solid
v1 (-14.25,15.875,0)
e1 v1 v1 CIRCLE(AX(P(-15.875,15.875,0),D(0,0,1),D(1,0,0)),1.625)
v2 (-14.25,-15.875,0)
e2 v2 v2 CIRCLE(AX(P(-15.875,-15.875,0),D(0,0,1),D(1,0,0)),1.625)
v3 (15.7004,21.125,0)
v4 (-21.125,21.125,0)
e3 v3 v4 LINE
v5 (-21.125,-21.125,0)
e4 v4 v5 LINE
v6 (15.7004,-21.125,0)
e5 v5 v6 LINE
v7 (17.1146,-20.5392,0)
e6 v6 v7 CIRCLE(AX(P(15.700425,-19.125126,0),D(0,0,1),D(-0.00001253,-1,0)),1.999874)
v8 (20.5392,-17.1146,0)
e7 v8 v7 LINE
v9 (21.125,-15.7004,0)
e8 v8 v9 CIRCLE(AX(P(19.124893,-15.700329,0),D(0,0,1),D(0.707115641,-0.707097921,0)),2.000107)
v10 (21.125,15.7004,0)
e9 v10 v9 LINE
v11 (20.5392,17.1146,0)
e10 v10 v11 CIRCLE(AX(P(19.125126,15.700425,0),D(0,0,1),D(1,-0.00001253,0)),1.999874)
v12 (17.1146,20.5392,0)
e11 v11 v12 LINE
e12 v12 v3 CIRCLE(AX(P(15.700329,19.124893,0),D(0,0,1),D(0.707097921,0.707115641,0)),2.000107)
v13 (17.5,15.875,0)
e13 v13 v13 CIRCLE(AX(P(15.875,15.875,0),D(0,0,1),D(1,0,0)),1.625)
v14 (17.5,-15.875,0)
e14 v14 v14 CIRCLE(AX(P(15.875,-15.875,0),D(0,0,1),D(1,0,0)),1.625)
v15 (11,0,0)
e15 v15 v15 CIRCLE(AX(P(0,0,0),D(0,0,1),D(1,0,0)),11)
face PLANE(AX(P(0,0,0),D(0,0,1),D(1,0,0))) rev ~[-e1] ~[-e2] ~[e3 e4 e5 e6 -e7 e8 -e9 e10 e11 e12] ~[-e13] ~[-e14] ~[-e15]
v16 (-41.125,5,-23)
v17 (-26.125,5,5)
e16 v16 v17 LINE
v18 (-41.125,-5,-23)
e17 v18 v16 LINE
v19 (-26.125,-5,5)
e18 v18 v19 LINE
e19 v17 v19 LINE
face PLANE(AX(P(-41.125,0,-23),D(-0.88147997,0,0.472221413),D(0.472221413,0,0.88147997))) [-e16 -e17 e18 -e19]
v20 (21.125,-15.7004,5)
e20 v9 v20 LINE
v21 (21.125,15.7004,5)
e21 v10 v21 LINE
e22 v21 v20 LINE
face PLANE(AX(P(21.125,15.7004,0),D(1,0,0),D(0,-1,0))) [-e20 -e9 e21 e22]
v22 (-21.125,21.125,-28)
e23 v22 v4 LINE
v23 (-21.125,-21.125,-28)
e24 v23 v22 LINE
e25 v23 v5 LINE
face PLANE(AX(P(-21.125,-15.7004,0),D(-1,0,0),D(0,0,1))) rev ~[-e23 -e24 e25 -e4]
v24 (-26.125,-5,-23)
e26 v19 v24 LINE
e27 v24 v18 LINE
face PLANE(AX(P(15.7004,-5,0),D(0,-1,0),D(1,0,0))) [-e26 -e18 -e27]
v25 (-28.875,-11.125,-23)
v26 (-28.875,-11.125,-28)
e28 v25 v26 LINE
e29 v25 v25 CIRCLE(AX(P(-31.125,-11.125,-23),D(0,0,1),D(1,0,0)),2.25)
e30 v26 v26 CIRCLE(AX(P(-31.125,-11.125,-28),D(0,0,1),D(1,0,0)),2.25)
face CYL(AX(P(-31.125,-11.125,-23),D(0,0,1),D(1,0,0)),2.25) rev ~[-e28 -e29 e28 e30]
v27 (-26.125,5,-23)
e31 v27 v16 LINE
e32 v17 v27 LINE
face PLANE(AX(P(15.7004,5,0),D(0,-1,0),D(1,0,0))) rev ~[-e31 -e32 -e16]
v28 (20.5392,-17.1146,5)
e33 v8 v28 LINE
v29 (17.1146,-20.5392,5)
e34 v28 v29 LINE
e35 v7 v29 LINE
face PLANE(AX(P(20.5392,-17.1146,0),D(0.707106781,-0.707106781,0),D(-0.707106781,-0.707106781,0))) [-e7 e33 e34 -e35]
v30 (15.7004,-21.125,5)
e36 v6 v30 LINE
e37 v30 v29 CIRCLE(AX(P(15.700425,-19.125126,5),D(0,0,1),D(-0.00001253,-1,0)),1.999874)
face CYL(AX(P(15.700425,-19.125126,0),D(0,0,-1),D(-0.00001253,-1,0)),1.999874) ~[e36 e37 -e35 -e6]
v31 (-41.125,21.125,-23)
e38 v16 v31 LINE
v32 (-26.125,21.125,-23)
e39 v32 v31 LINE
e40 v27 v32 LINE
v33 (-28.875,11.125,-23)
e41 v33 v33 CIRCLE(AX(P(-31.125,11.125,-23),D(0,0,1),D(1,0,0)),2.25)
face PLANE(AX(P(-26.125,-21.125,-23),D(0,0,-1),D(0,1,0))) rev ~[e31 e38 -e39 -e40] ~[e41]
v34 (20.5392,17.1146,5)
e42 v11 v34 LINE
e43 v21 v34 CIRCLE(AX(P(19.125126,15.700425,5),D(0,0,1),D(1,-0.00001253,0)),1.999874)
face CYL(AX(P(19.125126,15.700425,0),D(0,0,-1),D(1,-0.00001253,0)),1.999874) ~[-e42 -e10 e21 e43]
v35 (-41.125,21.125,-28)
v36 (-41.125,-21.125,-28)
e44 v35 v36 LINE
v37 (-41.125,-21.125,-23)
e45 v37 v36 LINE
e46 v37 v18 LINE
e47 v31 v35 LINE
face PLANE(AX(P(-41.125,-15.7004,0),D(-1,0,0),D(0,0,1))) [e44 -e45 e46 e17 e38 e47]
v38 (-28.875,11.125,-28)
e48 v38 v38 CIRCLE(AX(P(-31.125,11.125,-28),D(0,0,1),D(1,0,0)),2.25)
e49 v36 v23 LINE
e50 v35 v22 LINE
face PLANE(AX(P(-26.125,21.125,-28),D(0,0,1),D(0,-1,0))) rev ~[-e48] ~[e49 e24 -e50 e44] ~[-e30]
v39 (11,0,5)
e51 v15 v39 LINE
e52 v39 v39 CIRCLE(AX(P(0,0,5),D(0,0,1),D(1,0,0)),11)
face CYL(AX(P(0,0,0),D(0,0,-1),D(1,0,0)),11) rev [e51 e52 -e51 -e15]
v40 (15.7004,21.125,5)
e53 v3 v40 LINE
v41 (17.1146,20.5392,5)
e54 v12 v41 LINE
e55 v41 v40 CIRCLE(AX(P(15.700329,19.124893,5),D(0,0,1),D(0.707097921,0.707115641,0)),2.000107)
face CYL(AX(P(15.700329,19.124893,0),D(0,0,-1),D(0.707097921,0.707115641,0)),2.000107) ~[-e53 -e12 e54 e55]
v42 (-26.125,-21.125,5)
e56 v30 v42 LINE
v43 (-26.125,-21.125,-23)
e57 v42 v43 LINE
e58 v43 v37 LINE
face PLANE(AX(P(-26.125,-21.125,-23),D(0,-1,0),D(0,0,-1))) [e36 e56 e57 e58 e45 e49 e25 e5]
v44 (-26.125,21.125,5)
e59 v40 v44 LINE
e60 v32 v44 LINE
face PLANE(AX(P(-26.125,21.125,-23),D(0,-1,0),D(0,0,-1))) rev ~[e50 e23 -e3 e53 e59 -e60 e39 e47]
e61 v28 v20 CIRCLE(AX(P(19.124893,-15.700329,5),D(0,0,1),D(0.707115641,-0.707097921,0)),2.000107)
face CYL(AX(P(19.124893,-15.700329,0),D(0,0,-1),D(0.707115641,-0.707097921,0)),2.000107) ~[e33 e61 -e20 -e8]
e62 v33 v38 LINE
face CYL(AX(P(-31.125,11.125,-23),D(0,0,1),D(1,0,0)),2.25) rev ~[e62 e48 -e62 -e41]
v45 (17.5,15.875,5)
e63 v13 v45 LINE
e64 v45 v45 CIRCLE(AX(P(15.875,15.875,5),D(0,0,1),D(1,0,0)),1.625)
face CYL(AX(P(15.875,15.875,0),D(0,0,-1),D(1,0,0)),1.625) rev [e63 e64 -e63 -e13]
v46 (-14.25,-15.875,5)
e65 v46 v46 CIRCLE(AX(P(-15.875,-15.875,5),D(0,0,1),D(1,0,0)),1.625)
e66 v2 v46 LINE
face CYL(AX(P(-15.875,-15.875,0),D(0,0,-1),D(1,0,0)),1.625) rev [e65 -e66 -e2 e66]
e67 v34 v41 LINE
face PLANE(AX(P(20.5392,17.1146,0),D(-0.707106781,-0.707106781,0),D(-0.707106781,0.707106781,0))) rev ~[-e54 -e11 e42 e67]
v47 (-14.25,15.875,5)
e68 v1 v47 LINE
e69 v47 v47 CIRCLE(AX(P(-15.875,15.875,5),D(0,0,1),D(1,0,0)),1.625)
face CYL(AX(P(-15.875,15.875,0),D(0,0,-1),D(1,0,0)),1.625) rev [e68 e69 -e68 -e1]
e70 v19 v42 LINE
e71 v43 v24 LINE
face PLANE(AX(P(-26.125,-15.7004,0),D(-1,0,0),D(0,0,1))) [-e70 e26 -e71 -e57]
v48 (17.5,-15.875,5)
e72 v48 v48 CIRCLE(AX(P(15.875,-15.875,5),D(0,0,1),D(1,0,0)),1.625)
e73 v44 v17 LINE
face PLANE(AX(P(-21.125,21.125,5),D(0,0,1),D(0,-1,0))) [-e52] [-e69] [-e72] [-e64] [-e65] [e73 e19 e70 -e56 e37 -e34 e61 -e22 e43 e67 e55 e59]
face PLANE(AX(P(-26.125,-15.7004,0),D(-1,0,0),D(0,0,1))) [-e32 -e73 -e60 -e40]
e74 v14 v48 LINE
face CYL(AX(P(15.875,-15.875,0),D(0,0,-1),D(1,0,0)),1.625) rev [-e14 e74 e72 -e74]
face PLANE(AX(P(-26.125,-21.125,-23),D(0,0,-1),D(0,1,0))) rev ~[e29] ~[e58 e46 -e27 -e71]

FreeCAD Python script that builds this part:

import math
import FreeCAD as App
import Part
import Sketcher
from FreeCAD import Vector

doc = App.newDocument("Part")
body = doc.addObject("PartDesign::Body", "Body")

# Sketch on XY plane
sketch1 = body.newObject("Sketcher::SketchObject", "Sketch")
sketch1.AttachmentSupport = (doc.getObject("XY_Plane"), [""])
sketch1.MapMode = "FlatFace"
sketch1.addGeometry(Part.LineSegment(Vector(-17.1, 20.5, 0), Vector(-20.5, 17.1, 0)), False)
sketch1.addGeometry(Part.ArcOfCircle(Part.Circle(Vector(-19.1, 15.7, 0), Vector(0, 0, 1), 2), math.radians(135), math.radians(180)), False)
sketch1.addGeometry(Part.LineSegment(Vector(-21.1, 15.7, 0), Vector(-21.1, -15.7, 0)), False)
sketch1.addGeometry(Part.ArcOfCircle(Part.Circle(Vector(-19.1, -15.7, 0), Vector(0, 0, 1), 2), math.radians(180), math.radians(225)), False)
sketch1.addGeometry(Part.LineSegment(Vector(-20.5, -17.1, 0), Vector(-17.1, -20.5, 0)), False)
sketch1.addGeometry(Part.ArcOfCircle(Part.Circle(Vector(-15.7, -19.1, 0), Vector(0, 0, 1), 2), math.radians(-135), math.radians(-90)), False)
sketch1.addGeometry(Part.LineSegment(Vector(-15.7, -21.1, 0), Vector(15.7, -21.1, 0)), False)
sketch1.addGeometry(Part.ArcOfCircle(Part.Circle(Vector(15.7, -19.1, 0), Vector(0, 0, 1), 2), math.radians(-90), math.radians(-45)), False)
sketch1.addGeometry(Part.LineSegment(Vector(17.1, -20.5, 0), Vector(20.5, -17.1, 0)), False)
sketch1.addGeometry(Part.ArcOfCircle(Part.Circle(Vector(19.1, -15.7, 0), Vector(0, 0, 1), 2), math.radians(-45), math.radians(0)), False)
sketch1.addGeometry(Part.LineSegment(Vector(21.1, -15.7, 0), Vector(21.1, 15.7, 0)), False)
sketch1.addGeometry(Part.ArcOfCircle(Part.Circle(Vector(19.1, 15.7, 0), Vector(0, 0, 1), 2), math.radians(0), math.radians(45)), False)
sketch1.addGeometry(Part.LineSegment(Vector(20.5, 17.1, 0), Vector(17.1, 20.5, 0)), False)
sketch1.addGeometry(Part.ArcOfCircle(Part.Circle(Vector(15.7, 19.1, 0), Vector(0, 0, 1), 2), math.radians(45), math.radians(90)), False)
sketch1.addGeometry(Part.LineSegment(Vector(15.7, 21.1, 0), Vector(-15.7, 21.1, 0)), False)
sketch1.addGeometry(Part.ArcOfCircle(Part.Circle(Vector(-15.7, 19.1, 0), Vector(0, 0, 1), 2), math.radians(90), math.radians(135)), False)
sketch1.addGeometry(Part.Circle(Vector(-15.9, -15.9, 0), Vector(0, 0, 1), 1.6), False)
sketch1.addGeometry(Part.Circle(Vector(15.9, -15.9, 0), Vector(0, 0, 1), 1.6), False)
sketch1.addGeometry(Part.Circle(Vector(-15.9, 15.9, 0), Vector(0, 0, 1), 1.6), False)
sketch1.addGeometry(Part.Circle(Vector(15.9, 15.9, 0), Vector(0, 0, 1), 1.6), False)
sketch1.addGeometry(Part.Circle(Vector(0, 0, 0), Vector(0, 0, 1), 11), False)
sketch1.addConstraint(Sketcher.Constraint("Tangent", 0, 2, 1, 1))
sketch1.addConstraint(Sketcher.Constraint("Tangent", 1, 2, 2, 1))
sketch1.addConstraint(Sketcher.Constraint("Tangent", 2, 2, 3, 1))
sketch1.addConstraint(Sketcher.Constraint("Tangent", 3, 2, 4, 1))
sketch1.addConstraint(Sketcher.Constraint("Tangent", 4, 2, 5, 1))
sketch1.addConstraint(Sketcher.Constraint("Tangent", 5, 2, 6, 1))
sketch1.addConstraint(Sketcher.Constraint("Tangent", 6, 2, 7, 1))
sketch1.addConstraint(Sketcher.Constraint("Tangent", 7, 2, 8, 1))
sketch1.addConstraint(Sketcher.Constraint("Tangent", 8, 2, 9, 1))
sketch1.addConstraint(Sketcher.Constraint("Tangent", 9, 2, 10, 1))
sketch1.addConstraint(Sketcher.Constraint("Tangent", 10, 2, 11, 1))
sketch1.addConstraint(Sketcher.Constraint("Tangent", 11, 2, 12, 1))
sketch1.addConstraint(Sketcher.Constraint("Tangent", 12, 2, 13, 1))
sketch1.addConstraint(Sketcher.Constraint("Tangent", 13, 2, 14, 1))
sketch1.addConstraint(Sketcher.Constraint("Tangent", 14, 2, 15, 1))
sketch1.addConstraint(Sketcher.Constraint("Tangent", 15, 2, 0, 1))
sketch1.addConstraint(Sketcher.Constraint("Vertical", 2))
sketch1.addConstraint(Sketcher.Constraint("Horizontal", 6))
sketch1.addConstraint(Sketcher.Constraint("Vertical", 10))
sketch1.addConstraint(Sketcher.Constraint("Horizontal", 14))
sketch1.addConstraint(Sketcher.Constraint("Coincident", 20, 3, -1, 1))
sketch1.addConstraint(Sketcher.Constraint("Equal", 1, 3))
sketch1.addConstraint(Sketcher.Constraint("Equal", 3, 5))
sketch1.addConstraint(Sketcher.Constraint("Equal", 5, 7))
sketch1.addConstraint(Sketcher.Constraint("Equal", 7, 9))
sketch1.addConstraint(Sketcher.Constraint("Equal", 9, 11))
sketch1.addConstraint(Sketcher.Constraint("Equal", 11, 13))
sketch1.addConstraint(Sketcher.Constraint("Equal", 13, 15))
sketch1.addConstraint(Sketcher.Constraint("Equal", 16, 17))
sketch1.addConstraint(Sketcher.Constraint("Equal", 17, 18))
sketch1.addConstraint(Sketcher.Constraint("Equal", 18, 19))
sketch1.addConstraint(Sketcher.Constraint("Symmetric", 1, 3, 9, 3, -1, 1))
sketch1.addConstraint(Sketcher.Constraint("Symmetric", 5, 3, 13, 3, -1, 1))
sketch1.addConstraint(Sketcher.Constraint("Symmetric", 17, 3, 18, 3, -1, 1))
sketch1.addConstraint(Sketcher.Constraint("Symmetric", 16, 3, 19, 3, -1, 1))
sketch1.addConstraint(Sketcher.Constraint("Symmetric", 16, 3, 17, 3, -2))
sketch1.addConstraint(Sketcher.Constraint("Symmetric", 4, 2, 7, 2, -2))
sketch1.addConstraint(Sketcher.Constraint("Symmetric", 0, 2, 11, 2, -2))
sketch1.addConstraint(Sketcher.Constraint("Perpendicular", 0, 4))
sketch1.addConstraint(Sketcher.Constraint("Equal", 14, 2))
sketch1.addConstraint(Sketcher.Constraint("Diameter", 20, 22.0))
sketch1.addConstraint(Sketcher.Constraint("Radius", 1, 2.0))
sketch1.addConstraint(Sketcher.Constraint("Diameter", 16, 3.25))
sketch1.addConstraint(Sketcher.Constraint("DistanceX", 16, 3, 9, 3, 35.0))
sketch1.addConstraint(Sketcher.Constraint("DistanceX", 3, 3, 9, 3, 38.25))
sketch1.addConstraint(Sketcher.Constraint("DistanceY", 5, 3, 16, 3, 3.25))
sketch1.addConstraint(Sketcher.Constraint("Distance", 0, 4.843))
pad1 = body.newObject("PartDesign::Pad", "Pad")
pad1.Profile = sketch1
pad1.Length = 5

# Sketch on YZ plane
sketch2 = body.newObject("Sketcher::SketchObject", "Sketch001")
sketch2.AttachmentSupport = (doc.getObject("YZ_Plane"), [""])
sketch2.MapMode = "FlatFace"
sketch2.AttachmentOffset = App.Placement(Vector(0, 0, -21.125), App.Rotation())
sketch2.addGeometry(Part.LineSegment(Vector(-21, -28, 0), Vector(-21, 5, 0)), False)
sketch2.addGeometry(Part.LineSegment(Vector(-21, 5, 0), Vector(21, 5, 0)), False)
sketch2.addGeometry(Part.LineSegment(Vector(21, 5, 0), Vector(21, -28, 0)), False)
sketch2.addGeometry(Part.LineSegment(Vector(21, -28, 0), Vector(-21, -28, 0)), False)
sketch2.addConstraint(Sketcher.Constraint("Coincident", 0, 2, 1, 1))
sketch2.addConstraint(Sketcher.Constraint("Coincident", 1, 2, 2, 1))
sketch2.addConstraint(Sketcher.Constraint("Coincident", 2, 2, 3, 1))
sketch2.addConstraint(Sketcher.Constraint("Coincident", 3, 2, 0, 1))
sketch2.addConstraint(Sketcher.Constraint("Vertical", 0))
sketch2.addConstraint(Sketcher.Constraint("Horizontal", 1))
sketch2.addConstraint(Sketcher.Constraint("Vertical", 2))
sketch2.addConstraint(Sketcher.Constraint("Horizontal", 3))
sketch2.addConstraint(Sketcher.Constraint("DistanceY", 0, 1, 0, 2, 33.0))
sketch2.addConstraint(Sketcher.Constraint("DistanceY", -1, 1, 0, 2, 5.0))
sketch2.addConstraint(Sketcher.Constraint("DistanceX", 1, 1, 1, 2, 42.25))
sketch2.addConstraint(Sketcher.Constraint("DistanceX", 0, 2, -1, 1, 21.125))
pad2 = body.newObject("PartDesign::Pad", "Pad001")
pad2.Profile = sketch2
pad2.Length = 5
pad2.Reversed = True

# Sketch on XY plane
sketch3 = body.newObject("Sketcher::SketchObject", "Sketch002")
sketch3.AttachmentSupport = (doc.getObject("XY_Plane"), [""])
sketch3.MapMode = "FlatFace"
sketch3.AttachmentOffset = App.Placement(Vector(0, 0, 5), App.Rotation())
sketch3.addGeometry(Part.ArcOfCircle(Part.Circle(Vector(-19.1, -15.7, 0), Vector(0, 0, 1), 2), math.radians(180), math.radians(225)), False)
sketch3.addGeometry(Part.LineSegment(Vector(-21.1, -15.7, 0), Vector(-21.1, -21.1, 0)), False)
sketch3.addGeometry(Part.LineSegment(Vector(-21.1, -21.1, 0), Vector(-15.7, -21.1, 0)), False)
sketch3.addGeometry(Part.ArcOfCircle(Part.Circle(Vector(-15.7, -19.1, 0), Vector(0, 0, 1), 2), math.radians(-135), math.radians(-90)), False)
sketch3.addGeometry(Part.LineSegment(Vector(-17.1, -20.5, 0), Vector(-20.5, -17.1, 0)), False)
sketch3.addGeometry(Part.LineSegment(Vector(-15.7, 21.1, 0), Vector(-21.1, 21.1, 0)), False)
sketch3.addGeometry(Part.LineSegment(Vector(-21.1, 21.1, 0), Vector(-21.1, 15.7, 0)), False)
sketch3.addGeometry(Part.ArcOfCircle(Part.Circle(Vector(-19.1, 15.7, 0), Vector(0, 0, 1), 2), math.radians(135), math.radians(180)), False)
sketch3.addGeometry(Part.LineSegment(Vector(-20.5, 17.1, 0), Vector(-17.1, 20.5, 0)), False)
sketch3.addGeometry(Part.ArcOfCircle(Part.Circle(Vector(-15.7, 19.1, 0), Vector(0, 0, 1), 2), math.radians(90), math.radians(135)), False)
sketch3.addConstraint(Sketcher.Constraint("Tangent", 0, 1, 1, 1))
sketch3.addConstraint(Sketcher.Constraint("Coincident", 1, 2, 2, 1))
sketch3.addConstraint(Sketcher.Constraint("Tangent", 2, 2, 3, 2))
sketch3.addConstraint(Sketcher.Constraint("Tangent", 3, 1, 4, 1))
sketch3.addConstraint(Sketcher.Constraint("Tangent", 4, 2, 0, 2))
sketch3.addConstraint(Sketcher.Constraint("Coincident", 5, 2, 6, 1))
sketch3.addConstraint(Sketcher.Constraint("Tangent", 6, 2, 7, 2))
sketch3.addConstraint(Sketcher.Constraint("Tangent", 7, 1, 8, 1))
sketch3.addConstraint(Sketcher.Constraint("Tangent", 8, 2, 9, 2))
sketch3.addConstraint(Sketcher.Constraint("Tangent", 9, 1, 5, 1))
sketch3.addConstraint(Sketcher.Constraint("Vertical", 1))
sketch3.addConstraint(Sketcher.Constraint("Horizontal", 2))
sketch3.addConstraint(Sketcher.Constraint("Horizontal", 5))
sketch3.addConstraint(Sketcher.Constraint("Vertical", 6))
sketch3.addConstraint(Sketcher.Constraint("Equal", 0, 3))
sketch3.addConstraint(Sketcher.Constraint("Equal", 3, 7))
sketch3.addConstraint(Sketcher.Constraint("Equal", 7, 9))
sketch3.addConstraint(Sketcher.Constraint("Symmetric", 0, 3, 7, 3, -1))
sketch3.addConstraint(Sketcher.Constraint("Symmetric", 3, 3, 9, 3, -1))
sketch3.addConstraint(Sketcher.Constraint("Perpendicular", 4, 8))
sketch3.addConstraint(Sketcher.Constraint("Radius", 0, 2.0))
sketch3.addConstraint(Sketcher.Constraint("DistanceY", 3, 3, 9, 3, 38.25))
sketch3.addConstraint(Sketcher.Constraint("Distance", 4, 4.843))
sketch3.addConstraint(Sketcher.Constraint("DistanceX", 0, 3, -1, 1, 19.125))
pad3 = body.newObject("PartDesign::Pad", "Pad002")
pad3.Profile = sketch3
pad3.Length = 5
pad3.Reversed = True

# Sketch on YZ plane
sketch4 = body.newObject("Sketcher::SketchObject", "Sketch003")
sketch4.AttachmentSupport = (doc.getObject("YZ_Plane"), [""])
sketch4.MapMode = "FlatFace"
sketch4.AttachmentOffset = App.Placement(Vector(0, 0, -26.125), App.Rotation())
sketch4.addGeometry(Part.LineSegment(Vector(-21, -28, 0), Vector(-21, -23, 0)), False)
sketch4.addGeometry(Part.LineSegment(Vector(-21, -23, 0), Vector(21, -23, 0)), False)
sketch4.addGeometry(Part.LineSegment(Vector(21, -23, 0), Vector(21, -28, 0)), False)
sketch4.addGeometry(Part.LineSegment(Vector(21, -28, 0), Vector(-21, -28, 0)), False)
sketch4.addConstraint(Sketcher.Constraint("Coincident", 0, 2, 1, 1))
sketch4.addConstraint(Sketcher.Constraint("Coincident", 1, 2, 2, 1))
sketch4.addConstraint(Sketcher.Constraint("Coincident", 2, 2, 3, 1))
sketch4.addConstraint(Sketcher.Constraint("Coincident", 3, 2, 0, 1))
sketch4.addConstraint(Sketcher.Constraint("Vertical", 0))
sketch4.addConstraint(Sketcher.Constraint("Horizontal", 1))
sketch4.addConstraint(Sketcher.Constraint("Vertical", 2))
sketch4.addConstraint(Sketcher.Constraint("Horizontal", 3))
sketch4.addConstraint(Sketcher.Constraint("DistanceY", 0, 1, 0, 2, 5.0))
sketch4.addConstraint(Sketcher.Constraint("DistanceY", 0, 2, -1, 1, 23.0))
sketch4.addConstraint(Sketcher.Constraint("DistanceX", 1, 1, 1, 2, 42.25))
sketch4.addConstraint(Sketcher.Constraint("DistanceX", 0, 2, -1, 1, 21.125))
pad4 = body.newObject("PartDesign::Pad", "Pad003")
pad4.Profile = sketch4
pad4.Length = 15
pad4.Reversed = True

# Sketch on XY plane
sketch5 = body.newObject("Sketcher::SketchObject", "Sketch004")
sketch5.AttachmentSupport = (doc.getObject("XY_Plane"), [""])
sketch5.MapMode = "FlatFace"
sketch5.AttachmentOffset = App.Placement(Vector(0, 0, -23), App.Rotation())
sketch5.addGeometry(Part.Circle(Vector(-31.1, 11.1, 0), Vector(0, 0, 1), 2.2), False)
sketch5.addGeometry(Part.Circle(Vector(-31.1, -11.1, 0), Vector(0, 0, 1), 2.2), False)
sketch5.addConstraint(Sketcher.Constraint("Equal", 0, 1))
sketch5.addConstraint(Sketcher.Constraint("Symmetric", 0, 3, 1, 3, -1))
sketch5.addConstraint(Sketcher.Constraint("Diameter", 0, 4.5))
sketch5.addConstraint(Sketcher.Constraint("DistanceY", 1, 3, 0, 3, 22.25))
sketch5.addConstraint(Sketcher.Constraint("DistanceX", 0, 3, -1, 1, 31.125))
pocket1 = body.newObject("PartDesign::Pocket", "Pocket")
pocket1.Profile = sketch5
pocket1.Type = "ThroughAll"
pocket1.Midplane = True

# Sketch on XZ plane
sketch6 = body.newObject("Sketcher::SketchObject", "Sketch005")
sketch6.AttachmentSupport = (doc.getObject("XZ_Plane"), [""])
sketch6.MapMode = "FlatFace"
sketch6.addGeometry(Part.LineSegment(Vector(-41, -23, 0), Vector(-26, -23, 0)), False)
sketch6.addGeometry(Part.LineSegment(Vector(-26, -23, 0), Vector(-26, 5, 0)), False)
sketch6.addGeometry(Part.LineSegment(Vector(-26, 5, 0), Vector(-41, -23, 0)), False)
sketch6.addConstraint(Sketcher.Constraint("Coincident", 0, 2, 1, 1))
sketch6.addConstraint(Sketcher.Constraint("Coincident", 1, 2, 2, 1))
sketch6.addConstraint(Sketcher.Constraint("Coincident", 2, 2, 0, 1))
sketch6.addConstraint(Sketcher.Constraint("Horizontal", 0))
sketch6.addConstraint(Sketcher.Constraint("Vertical", 1))
sketch6.addConstraint(Sketcher.Constraint("DistanceX", 0, 1, 0, 2, 15.0))
sketch6.addConstraint(Sketcher.Constraint("DistanceY", 1, 1, 1, 2, 28.0))
sketch6.addConstraint(Sketcher.Constraint("DistanceY", 0, 2, -1, 1, 23.0))
sketch6.addConstraint(Sketcher.Constraint("DistanceX", 0, 2, -1, 1, 26.125))
pad5 = body.newObject("PartDesign::Pad", "Pad004")
pad5.Profile = sketch6
pad5.Length = 10
pad5.Midplane = True

doc.recompute()
